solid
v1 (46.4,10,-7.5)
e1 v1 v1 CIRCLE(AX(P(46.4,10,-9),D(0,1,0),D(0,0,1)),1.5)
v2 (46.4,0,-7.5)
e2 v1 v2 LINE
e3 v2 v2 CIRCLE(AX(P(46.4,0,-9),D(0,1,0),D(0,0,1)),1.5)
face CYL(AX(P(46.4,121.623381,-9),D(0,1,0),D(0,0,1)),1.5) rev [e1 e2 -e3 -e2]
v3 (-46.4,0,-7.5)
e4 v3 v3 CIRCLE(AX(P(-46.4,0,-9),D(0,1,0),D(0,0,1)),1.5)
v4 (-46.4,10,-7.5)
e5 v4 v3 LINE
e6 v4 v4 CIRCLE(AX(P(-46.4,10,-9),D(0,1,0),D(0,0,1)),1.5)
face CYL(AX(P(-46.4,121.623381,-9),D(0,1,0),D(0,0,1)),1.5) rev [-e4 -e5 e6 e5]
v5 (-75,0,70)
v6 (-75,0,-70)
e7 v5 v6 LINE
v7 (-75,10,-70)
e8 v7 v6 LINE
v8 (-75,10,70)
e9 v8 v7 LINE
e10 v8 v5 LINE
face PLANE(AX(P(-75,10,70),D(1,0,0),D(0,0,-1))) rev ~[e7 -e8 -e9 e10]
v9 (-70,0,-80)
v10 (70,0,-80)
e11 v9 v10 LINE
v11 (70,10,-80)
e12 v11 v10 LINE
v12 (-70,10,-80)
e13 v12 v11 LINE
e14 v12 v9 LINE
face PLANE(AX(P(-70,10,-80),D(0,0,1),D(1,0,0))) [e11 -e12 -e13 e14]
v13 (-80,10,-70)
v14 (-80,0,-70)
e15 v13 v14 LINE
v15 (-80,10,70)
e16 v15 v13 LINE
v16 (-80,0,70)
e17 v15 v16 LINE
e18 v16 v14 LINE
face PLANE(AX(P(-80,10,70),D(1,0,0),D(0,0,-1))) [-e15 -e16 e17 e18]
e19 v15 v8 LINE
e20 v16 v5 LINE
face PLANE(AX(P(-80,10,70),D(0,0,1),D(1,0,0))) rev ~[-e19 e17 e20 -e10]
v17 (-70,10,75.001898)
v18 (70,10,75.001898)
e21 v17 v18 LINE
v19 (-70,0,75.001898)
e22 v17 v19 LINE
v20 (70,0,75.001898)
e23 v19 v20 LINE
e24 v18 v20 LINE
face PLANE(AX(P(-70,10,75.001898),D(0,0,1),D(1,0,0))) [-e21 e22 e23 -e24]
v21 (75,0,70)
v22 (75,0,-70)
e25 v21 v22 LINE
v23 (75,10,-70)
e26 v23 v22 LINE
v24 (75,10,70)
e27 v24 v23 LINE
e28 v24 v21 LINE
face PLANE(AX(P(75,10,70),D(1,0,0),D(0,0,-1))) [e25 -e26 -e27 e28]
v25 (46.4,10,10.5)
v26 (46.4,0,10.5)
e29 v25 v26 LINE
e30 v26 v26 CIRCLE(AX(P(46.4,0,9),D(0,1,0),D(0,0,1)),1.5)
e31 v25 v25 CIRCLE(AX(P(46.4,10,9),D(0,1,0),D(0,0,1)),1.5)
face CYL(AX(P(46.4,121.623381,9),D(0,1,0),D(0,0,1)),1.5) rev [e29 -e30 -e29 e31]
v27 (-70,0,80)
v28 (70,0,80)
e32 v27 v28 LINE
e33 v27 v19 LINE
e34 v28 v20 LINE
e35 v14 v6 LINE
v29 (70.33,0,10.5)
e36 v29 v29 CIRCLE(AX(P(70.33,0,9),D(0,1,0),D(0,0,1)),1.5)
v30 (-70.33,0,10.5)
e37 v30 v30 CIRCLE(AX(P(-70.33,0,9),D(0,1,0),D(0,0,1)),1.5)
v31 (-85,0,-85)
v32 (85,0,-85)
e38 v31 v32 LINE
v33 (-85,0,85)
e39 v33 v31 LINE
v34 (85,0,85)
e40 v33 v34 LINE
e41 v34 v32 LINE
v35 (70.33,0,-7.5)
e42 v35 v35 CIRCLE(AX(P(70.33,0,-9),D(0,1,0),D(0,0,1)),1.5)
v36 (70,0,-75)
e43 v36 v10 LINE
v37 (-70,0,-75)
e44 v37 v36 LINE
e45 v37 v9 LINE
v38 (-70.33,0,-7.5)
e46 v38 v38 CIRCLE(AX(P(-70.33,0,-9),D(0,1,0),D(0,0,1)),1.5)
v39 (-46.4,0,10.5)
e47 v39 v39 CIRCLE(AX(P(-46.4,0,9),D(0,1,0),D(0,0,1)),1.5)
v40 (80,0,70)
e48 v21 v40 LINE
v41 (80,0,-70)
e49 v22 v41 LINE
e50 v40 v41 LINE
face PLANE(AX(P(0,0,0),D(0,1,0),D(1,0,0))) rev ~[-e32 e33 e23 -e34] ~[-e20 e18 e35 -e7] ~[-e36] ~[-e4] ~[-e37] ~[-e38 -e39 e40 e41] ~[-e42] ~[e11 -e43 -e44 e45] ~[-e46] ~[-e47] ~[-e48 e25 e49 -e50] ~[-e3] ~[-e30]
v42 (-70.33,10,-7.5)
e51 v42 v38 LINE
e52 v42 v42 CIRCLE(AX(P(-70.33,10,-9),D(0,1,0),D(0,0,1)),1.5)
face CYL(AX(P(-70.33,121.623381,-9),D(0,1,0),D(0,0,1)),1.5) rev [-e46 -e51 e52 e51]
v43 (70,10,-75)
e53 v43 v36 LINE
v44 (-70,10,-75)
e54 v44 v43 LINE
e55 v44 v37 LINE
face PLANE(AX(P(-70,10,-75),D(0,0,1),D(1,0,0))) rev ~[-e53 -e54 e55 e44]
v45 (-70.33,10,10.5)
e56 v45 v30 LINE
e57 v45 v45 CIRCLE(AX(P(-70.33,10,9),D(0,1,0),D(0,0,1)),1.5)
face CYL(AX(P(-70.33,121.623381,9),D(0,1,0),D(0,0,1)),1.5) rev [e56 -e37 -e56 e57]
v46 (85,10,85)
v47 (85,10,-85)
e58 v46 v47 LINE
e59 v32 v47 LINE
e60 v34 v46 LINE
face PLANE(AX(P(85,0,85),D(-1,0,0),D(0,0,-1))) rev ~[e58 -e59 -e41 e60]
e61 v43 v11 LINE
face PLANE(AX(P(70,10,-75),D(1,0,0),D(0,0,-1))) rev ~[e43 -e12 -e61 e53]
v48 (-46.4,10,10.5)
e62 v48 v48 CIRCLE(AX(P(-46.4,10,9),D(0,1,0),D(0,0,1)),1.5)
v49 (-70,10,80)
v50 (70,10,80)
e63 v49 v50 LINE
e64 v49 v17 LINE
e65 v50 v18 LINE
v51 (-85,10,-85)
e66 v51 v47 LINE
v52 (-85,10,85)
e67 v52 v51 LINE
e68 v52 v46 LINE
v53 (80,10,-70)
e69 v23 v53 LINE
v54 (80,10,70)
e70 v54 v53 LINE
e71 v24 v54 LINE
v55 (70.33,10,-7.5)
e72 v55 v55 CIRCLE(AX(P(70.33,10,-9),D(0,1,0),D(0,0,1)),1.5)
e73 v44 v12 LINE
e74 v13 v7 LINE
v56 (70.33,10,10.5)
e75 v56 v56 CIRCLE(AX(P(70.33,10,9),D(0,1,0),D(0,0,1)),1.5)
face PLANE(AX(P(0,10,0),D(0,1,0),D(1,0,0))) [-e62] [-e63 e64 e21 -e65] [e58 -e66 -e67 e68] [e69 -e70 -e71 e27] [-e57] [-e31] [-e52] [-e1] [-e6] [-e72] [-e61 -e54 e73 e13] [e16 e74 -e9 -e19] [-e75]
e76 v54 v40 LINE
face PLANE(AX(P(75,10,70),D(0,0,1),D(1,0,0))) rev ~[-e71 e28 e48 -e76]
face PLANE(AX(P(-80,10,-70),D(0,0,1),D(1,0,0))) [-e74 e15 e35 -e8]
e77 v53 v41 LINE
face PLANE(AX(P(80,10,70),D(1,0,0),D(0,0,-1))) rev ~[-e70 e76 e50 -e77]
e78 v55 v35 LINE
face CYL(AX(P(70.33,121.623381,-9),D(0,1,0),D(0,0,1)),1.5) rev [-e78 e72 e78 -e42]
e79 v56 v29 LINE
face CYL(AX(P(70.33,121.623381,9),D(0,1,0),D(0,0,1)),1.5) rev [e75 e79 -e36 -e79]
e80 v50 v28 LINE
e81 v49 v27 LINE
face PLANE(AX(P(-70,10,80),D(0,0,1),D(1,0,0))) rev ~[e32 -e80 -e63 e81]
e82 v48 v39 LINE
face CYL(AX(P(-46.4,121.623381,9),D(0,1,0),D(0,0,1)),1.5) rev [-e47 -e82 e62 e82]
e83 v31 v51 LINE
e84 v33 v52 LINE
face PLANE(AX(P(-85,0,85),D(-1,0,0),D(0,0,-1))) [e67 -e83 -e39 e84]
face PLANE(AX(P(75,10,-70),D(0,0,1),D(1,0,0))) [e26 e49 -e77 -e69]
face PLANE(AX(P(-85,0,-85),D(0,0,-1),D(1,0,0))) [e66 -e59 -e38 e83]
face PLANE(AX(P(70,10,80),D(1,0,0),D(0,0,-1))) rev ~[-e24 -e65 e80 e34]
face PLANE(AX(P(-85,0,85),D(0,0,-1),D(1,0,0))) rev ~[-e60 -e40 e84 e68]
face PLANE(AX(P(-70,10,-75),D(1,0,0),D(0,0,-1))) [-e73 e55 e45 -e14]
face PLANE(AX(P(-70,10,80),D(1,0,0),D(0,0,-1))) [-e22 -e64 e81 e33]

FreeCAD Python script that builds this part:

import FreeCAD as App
import Part
import Sketcher

doc = App.newDocument("Part")
body = doc.addObject("PartDesign::Body", "Body")

sketch1 = body.newObject("Sketcher::SketchObject", "Sketch")
sketch1.AttachmentSupport = (doc.getObject("XZ_Plane"), [""])
sketch1.MapMode = "FlatFace"
sketch1.addGeometry(Part.LineSegment(App.Vector(-85, -85, 0), App.Vector(-85, 85, 0)), False)
sketch1.addGeometry(Part.LineSegment(App.Vector(-85, 85, 0), App.Vector(85, 85, 0)), False)
sketch1.addGeometry(Part.LineSegment(App.Vector(85, 85, 0), App.Vector(85, -85, 0)), False)
sketch1.addGeometry(Part.LineSegment(App.Vector(85, -85, 0), App.Vector(-85, -85, 0)), False)
sketch1.addConstraint(Sketcher.Constraint("Coincident", 0, 2, 1, 1))
sketch1.addConstraint(Sketcher.Constraint("Coincident", 1, 2, 2, 1))
sketch1.addConstraint(Sketcher.Constraint("Coincident", 2, 2, 3, 1))
sketch1.addConstraint(Sketcher.Constraint("Coincident", 3, 2, 0, 1))
sketch1.addConstraint(Sketcher.Constraint("Vertical", 0))
sketch1.addConstraint(Sketcher.Constraint("Horizontal", 1))
sketch1.addConstraint(Sketcher.Constraint("Vertical", 2))
sketch1.addConstraint(Sketcher.Constraint("Horizontal", 3))
sketch1.addConstraint(Sketcher.Constraint("Symmetric", 0, 2, 2, 2, -1, 1))
sketch1.addConstraint(Sketcher.Constraint("Equal", 3, 0))
sketch1.addConstraint(Sketcher.Constraint("DistanceX", 1, 1, 1, 2, 170.0))
pad1 = body.newObject("PartDesign::Pad", "Pad")
pad1.Profile = sketch1
pad1.Length = 10
pad1.Reversed = True

sketch2 = body.newObject("Sketcher::SketchObject", "Sketch001")
sketch2.AttachmentSupport = (doc.getObject("XZ_Plane"), [""])
sketch2.MapMode = "FlatFace"
sketch2.AttachmentOffset = App.Placement(App.Vector(0, 0, -10), App.Rotation())
sketch2.addGeometry(Part.LineSegment(App.Vector(-80, -70, 0), App.Vector(-80, 70, 0)), False)
sketch2.addGeometry(Part.LineSegment(App.Vector(-80, 70, 0), App.Vector(-75, 70, 0)), False)
sketch2.addGeometry(Part.LineSegment(App.Vector(-75, 70, 0), App.Vector(-75, -70, 0)), False)
sketch2.addGeometry(Part.LineSegment(App.Vector(-75, -70, 0), App.Vector(-80, -70, 0)), False)
sketch2.addGeometry(Part.LineSegment(App.Vector(-70, 75, 0), App.Vector(-70, 80, 0)), False)
sketch2.addGeometry(Part.LineSegment(App.Vector(-70, 80, 0), App.Vector(70, 80, 0)), False)
sketch2.addGeometry(Part.LineSegment(App.Vector(70, 80, 0), App.Vector(70, 75, 0)), False)
sketch2.addGeometry(Part.LineSegment(App.Vector(70, 75, 0), App.Vector(-70, 75, 0)), False)
sketch2.addGeometry(Part.LineSegment(App.Vector(75, -70, 0), App.Vector(75, 70, 0)), False)
sketch2.addGeometry(Part.LineSegment(App.Vector(75, 70, 0), App.Vector(80, 70, 0)), False)
sketch2.addGeometry(Part.LineSegment(App.Vector(80, 70, 0), App.Vector(80, -70, 0)), False)
sketch2.addGeometry(Part.LineSegment(App.Vector(80, -70, 0), App.Vector(75, -70, 0)), False)
sketch2.addGeometry(Part.LineSegment(App.Vector(-70, -80, 0), App.Vector(-70, -75, 0)), False)
sketch2.addGeometry(Part.LineSegment(App.Vector(-70, -75, 0), App.Vector(70, -75, 0)), False)
sketch2.addGeometry(Part.LineSegment(App.Vector(70, -75, 0), App.Vector(70, -80, 0)), False)
sketch2.addGeometry(Part.LineSegment(App.Vector(70, -80, 0), App.Vector(-70, -80, 0)), False)
sketch2.addConstraint(Sketcher.Constraint("Coincident", 0, 2, 1, 1))
sketch2.addConstraint(Sketcher.Constraint("Coincident", 1, 2, 2, 1))
sketch2.addConstraint(Sketcher.Constraint("Coincident", 2, 2, 3, 1))
sketch2.addConstraint(Sketcher.Constraint("Coincident", 3, 2, 0, 1))
sketch2.addConstraint(Sketcher.Constraint("Coincident", 4, 2, 5, 1))
sketch2.addConstraint(Sketcher.Constraint("Coincident", 5, 2, 6, 1))
sketch2.addConstraint(Sketcher.Constraint("Coincident", 6, 2, 7, 1))
sketch2.addConstraint(Sketcher.Constraint("Coincident", 7, 2, 4, 1))
sketch2.addConstraint(Sketcher.Constraint("Coincident", 8, 2, 9, 1))
sketch2.addConstraint(Sketcher.Constraint("Coincident", 9, 2, 10, 1))
sketch2.addConstraint(Sketcher.Constraint("Coincident", 10, 2, 11, 1))
sketch2.addConstraint(Sketcher.Constraint("Coincident", 11, 2, 8, 1))
sketch2.addConstraint(Sketcher.Constraint("Coincident", 12, 2, 13, 1))
sketch2.addConstraint(Sketcher.Constraint("Coincident", 13, 2, 14, 1))
sketch2.addConstraint(Sketcher.Constraint("Coincident", 14, 2, 15, 1))
sketch2.addConstraint(Sketcher.Constraint("Coincident", 15, 2, 12, 1))
sketch2.addConstraint(Sketcher.Constraint("Vertical", 0))
sketch2.addConstraint(Sketcher.Constraint("Horizontal", 1))
sketch2.addConstraint(Sketcher.Constraint("Vertical", 2))
sketch2.addConstraint(Sketcher.Constraint("Horizontal", 3))
sketch2.addConstraint(Sketcher.Constraint("Vertical", 4))
sketch2.addConstraint(Sketcher.Constraint("Horizontal", 5))
sketch2.addConstraint(Sketcher.Constraint("Vertical", 6))
sketch2.addConstraint(Sketcher.Constraint("Horizontal", 7))
sketch2.addConstraint(Sketcher.Constraint("Vertical", 8))
sketch2.addConstraint(Sketcher.Constraint("Horizontal", 9))
sketch2.addConstraint(Sketcher.Constraint("Vertical", 10))
sketch2.addConstraint(Sketcher.Constraint("Horizontal", 11))
sketch2.addConstraint(Sketcher.Constraint("Vertical", 12))
sketch2.addConstraint(Sketcher.Constraint("Horizontal", 13))
sketch2.addConstraint(Sketcher.Constraint("Vertical", 14))
sketch2.addConstraint(Sketcher.Constraint("Horizontal", 15))
sketch2.addConstraint(Sketcher.Constraint("Symmetric", 2, 2, 8, 2, -1, 1))
sketch2.addConstraint(Sketcher.Constraint("Symmetric", 0, 2, 10, 2, -1, 1))
sketch2.addConstraint(Sketcher.Constraint("Symmetric", 4, 2, 14, 2, -1, 1))
sketch2.addConstraint(Sketcher.Constraint("Horizontal", 1, 2, 8, 2))
sketch2.addConstraint(Sketcher.Constraint("Vertical", 7, 2, 12, 2))
sketch2.addConstraint(Sketcher.Constraint("Vertical", 6, 2, 13, 2))
sketch2.addConstraint(Sketcher.Constraint("Equal", 15, 0))
sketch2.addConstraint(Sketcher.Constraint("Equal", 11, 12))
sketch2.addConstraint(Sketcher.Constraint("DistanceX", 1, 1, 1, 2, 5.0))
sketch2.addConstraint(Sketcher.Constraint("DistanceX", 5, 1, 5, 2, 140.0))
sketch2.addConstraint(Sketcher.Constraint("DistanceX", 0, 2, -1, 1, 80.0))
sketch2.addConstraint(Sketcher.Constraint("DistanceY", -1, 1, 4, 2, 80.0))
sketch2.addConstraint(Sketcher.Constraint("DistanceY", 4, 1, 4, 2, 4.998102))
pocket1 = body.newObject("PartDesign::Pocket", "Pocket")
pocket1.Profile = sketch2
pocket1.Length = 10
pocket1.Reversed = True

sketch3 = body.newObject("Sketcher::SketchObject", "Sketch002")
sketch3.AttachmentSupport = (doc.getObject("XZ_Plane"), [""])
sketch3.MapMode = "FlatFace"
sketch3.addGeometry(Part.Circle(App.Vector(70.3, 9, 0), App.Vector(0, 0, 1), 1.5), False)
sketch3.addGeometry(Part.Circle(App.Vector(70.3, -9, 0), App.Vector(0, 0, 1), 1.5), False)
sketch3.addGeometry(Part.Circle(App.Vector(-70.3, -9, 0), App.Vector(0, 0, 1), 1.5), False)
sketch3.addGeometry(Part.Circle(App.Vector(-70.3, 9, 0), App.Vector(0, 0, 1), 1.5), False)
sketch3.addGeometry(Part.Circle(App.Vector(-46.4, -9, 0), App.Vector(0, 0, 1), 1.5), False)
sketch3.addGeometry(Part.Circle(App.Vector(-46.4, 9, 0), App.Vector(0, 0, 1), 1.5), False)
sketch3.addGeometry(Part.Circle(App.Vector(46.4, 9, 0), App.Vector(0, 0, 1), 1.5), False)
sketch3.addGeometry(Part.Circle(App.Vector(46.4, -9, 0), App.Vector(0, 0, 1), 1.5), False)
sketch3.addConstraint(Sketcher.Constraint("Equal", 0, 1))
sketch3.addConstraint(Sketcher.Constraint("Equal", 1, 2))
sketch3.addConstraint(Sketcher.Constraint("Equal", 2, 3))
sketch3.addConstraint(Sketcher.Constraint("Equal", 3, 4))
sketch3.addConstraint(Sketcher.Constraint("Equal", 4, 5))
sketch3.addConstraint(Sketcher.Constraint("Equal", 5, 6))
sketch3.addConstraint(Sketcher.Constraint("Equal", 6, 7))
sketch3.addConstraint(Sketcher.Constraint("Symmetric", 0, 3, 2, 3, -1, 1))
sketch3.addConstraint(Sketcher.Constraint("Symmetric", 1, 3, 3, 3, -1, 1))
sketch3.addConstraint(Sketcher.Constraint("Symmetric", 4, 3, 6, 3, -1, 1))
sketch3.addConstraint(Sketcher.Constraint("Symmetric", 5, 3, 7, 3, -1, 1))
sketch3.addConstraint(Sketcher.Constraint("Symmetric", 1, 3, 2, 3, -2))
sketch3.addConstraint(Sketcher.Constraint("Symmetric", 5, 3, 6, 3, -2))
sketch3.addConstraint(Sketcher.Constraint("Horizontal", 2, 3, 4, 3))
sketch3.addConstraint(Sketcher.Constraint("Diameter", 0, 3.0))
sketch3.addConstraint(Sketcher.Constraint("DistanceY", -1, 1, 0, 3, 9.0))
sketch3.addConstraint(Sketcher.Constraint("DistanceX", 4, 3, -1, 1, 46.4))
sketch3.addConstraint(Sketcher.Constraint("DistanceX", -1, 1, 0, 3, 70.33))
pocket2 = body.newObject("PartDesign::Pocket", "Pocket001")
pocket2.Profile = sketch3
pocket2.Type = "ThroughAll"
pocket2.Midplane = True

doc.recompute()
